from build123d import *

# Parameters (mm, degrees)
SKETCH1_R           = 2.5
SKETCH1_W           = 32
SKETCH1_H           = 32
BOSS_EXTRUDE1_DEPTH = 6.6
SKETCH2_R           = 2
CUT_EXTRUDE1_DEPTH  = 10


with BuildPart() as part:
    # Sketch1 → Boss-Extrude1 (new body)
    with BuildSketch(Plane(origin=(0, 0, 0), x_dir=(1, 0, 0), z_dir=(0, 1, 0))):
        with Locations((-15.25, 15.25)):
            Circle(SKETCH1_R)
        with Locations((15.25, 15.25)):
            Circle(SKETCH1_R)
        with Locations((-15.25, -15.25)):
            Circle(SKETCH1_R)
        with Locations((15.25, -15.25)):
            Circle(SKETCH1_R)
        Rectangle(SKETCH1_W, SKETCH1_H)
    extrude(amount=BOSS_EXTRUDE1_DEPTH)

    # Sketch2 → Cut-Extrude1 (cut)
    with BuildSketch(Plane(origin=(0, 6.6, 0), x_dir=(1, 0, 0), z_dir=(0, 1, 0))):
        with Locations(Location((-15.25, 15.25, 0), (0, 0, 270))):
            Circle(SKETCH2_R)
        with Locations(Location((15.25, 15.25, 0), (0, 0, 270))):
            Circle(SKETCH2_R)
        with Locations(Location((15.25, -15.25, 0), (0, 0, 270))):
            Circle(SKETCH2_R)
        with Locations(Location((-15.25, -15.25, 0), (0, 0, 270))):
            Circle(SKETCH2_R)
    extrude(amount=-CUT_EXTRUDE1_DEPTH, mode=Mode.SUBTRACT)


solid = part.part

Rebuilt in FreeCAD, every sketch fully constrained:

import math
import FreeCAD as App
import Part
import Sketcher
from FreeCAD import Vector
Q = App.Units.Quantity

doc = App.newDocument("Part")
params = doc.addObject("Spreadsheet::Sheet", "Params")
for row, (alias, value) in enumerate([
    ("sketch1_radius", "2.5 mm"),
    ("pad1_length", "6.6 mm"),
    ("sketch2_diameter", "4 mm"),
    ("pocket1_length", "10 mm"),
], start=1):
    params.set(f"A{row}", alias)
    params.set(f"B{row}", "=" + value)
    params.setAlias(f"B{row}", alias)

body = doc.addObject("PartDesign::Body", "Body")

sketch1 = body.newObject("Sketcher::SketchObject", "Sketch")
sketch1.AttachmentSupport = (doc.getObject("XZ_Plane"), [""])
sketch1.MapMode = "FlatFace"
sketch1.addGeometry([
    Part.LineSegment(Vector(-16, -12.9, 0), Vector(-16, 12.9, 0)),
    Part.ArcOfCircle(Part.Circle(Vector(-15.2, 15.2, 0), Vector(0, 0, 1), 2.5), math.radians(17), math.radians(253)),
    Part.LineSegment(Vector(-12.9, 16, 0), Vector(12.9, 16, 0)),
    Part.ArcOfCircle(Part.Circle(Vector(15.2, 15.2, 0), Vector(0, 0, 1), 2.5), math.radians(-73), math.radians(163)),
    Part.LineSegment(Vector(16, 12.9, 0), Vector(16, -12.9, 0)),
    Part.ArcOfCircle(Part.Circle(Vector(15.2, -15.2, 0), Vector(0, 0, 1), 2.5), math.radians(-163), math.radians(73)),
    Part.LineSegment(Vector(12.9, -16, 0), Vector(-12.9, -16, 0)),
    Part.ArcOfCircle(Part.Circle(Vector(-15.2, -15.2, 0), Vector(0, 0, 1), 2.5), math.radians(107), math.radians(343)),
], False)
sketch1.addConstraint([
    Sketcher.Constraint("Coincident", 0, 2, 1, 2),
    Sketcher.Constraint("Coincident", 1, 1, 2, 1),
    Sketcher.Constraint("Coincident", 2, 2, 3, 2),
    Sketcher.Constraint("Coincident", 3, 1, 4, 1),
    Sketcher.Constraint("Coincident", 4, 2, 5, 2),
    Sketcher.Constraint("Coincident", 5, 1, 6, 1),
    Sketcher.Constraint("Coincident", 6, 2, 7, 2),
    Sketcher.Constraint("Coincident", 7, 1, 0, 1),
    Sketcher.Constraint("Vertical", 0),
    Sketcher.Constraint("Horizontal", 2),
    Sketcher.Constraint("Vertical", 4),
    Sketcher.Constraint("Horizontal", 6),
    Sketcher.Constraint("Equal", 1, 3),
    Sketcher.Constraint("Equal", 3, 5),
    Sketcher.Constraint("Equal", 5, 7),
    Sketcher.Constraint("Symmetric", 1, 3, 5, 3, -1, 1),
    Sketcher.Constraint("Symmetric", 3, 3, 7, 3, -1, 1),
    Sketcher.Constraint("Symmetric", 1, 3, 3, 3, -2),
    Sketcher.Constraint("Horizontal", 0, 2, 3, 1),
    Sketcher.Constraint("Vertical", 2, 2, 5, 1),
    Sketcher.Constraint("Equal", 6, 0),
    Sketcher.Constraint("Radius", 1, Q("2.5 mm")),
    Sketcher.Constraint("DistanceX", 0, 2, -1, 1, Q("16 mm")),
    Sketcher.Constraint("DistanceY", -1, 1, 1, 1, Q("16 mm")),
    Sketcher.Constraint("DistanceX", 1, 3, 3, 3, Q("30.5 mm")),
])
sketch1.setExpression("Constraints[21]", "Params.sketch1_radius")
pad1 = body.newObject("PartDesign::Pad", "Pad")
pad1.Profile = sketch1
pad1.setExpression("Length", "Params.pad1_length")
pad1.Reversed = True

sketch2 = body.newObject("Sketcher::SketchObject", "Sketch001")
sketch2.AttachmentSupport = (doc.getObject("XZ_Plane"), [""])
sketch2.MapMode = "FlatFace"
sketch2.AttachmentOffset = App.Placement(Vector(0, 0, -6.6), App.Rotation())
sketch2.addGeometry([
    Part.Circle(Vector(-15.2, -15.2, 0), Vector(0, 0, 1), 2),
    Part.Circle(Vector(15.2, -15.2, 0), Vector(0, 0, 1), 2),
    Part.Circle(Vector(15.2, 15.2, 0), Vector(0, 0, 1), 2),
    Part.Circle(Vector(-15.2, 15.2, 0), Vector(0, 0, 1), 2),
], False)
sketch2.addConstraint([
    Sketcher.Constraint("Equal", 0, 1),
    Sketcher.Constraint("Equal", 1, 2),
    Sketcher.Constraint("Equal", 2, 3),
    Sketcher.Constraint("Symmetric", 0, 3, 2, 3, -1, 1),
    Sketcher.Constraint("Symmetric", 1, 3, 3, 3, -1, 1),
    Sketcher.Constraint("Symmetric", 0, 3, 1, 3, -2),
    Sketcher.Constraint("Diameter", 0, Q("4 mm")),
    Sketcher.Constraint("DistanceX", 0, 3, 1, 3, Q("30.5 mm")),
    Sketcher.Constraint("DistanceY", 1, 3, 2, 3, Q("30.5 mm")),
])
sketch2.setExpression("Constraints[6]", "Params.sketch2_diameter")
pocket1 = body.newObject("PartDesign::Pocket", "Pocket")
pocket1.Profile = sketch2
pocket1.setExpression("Length", "Params.pocket1_length")
pocket1.Reversed = True

doc.recompute()
